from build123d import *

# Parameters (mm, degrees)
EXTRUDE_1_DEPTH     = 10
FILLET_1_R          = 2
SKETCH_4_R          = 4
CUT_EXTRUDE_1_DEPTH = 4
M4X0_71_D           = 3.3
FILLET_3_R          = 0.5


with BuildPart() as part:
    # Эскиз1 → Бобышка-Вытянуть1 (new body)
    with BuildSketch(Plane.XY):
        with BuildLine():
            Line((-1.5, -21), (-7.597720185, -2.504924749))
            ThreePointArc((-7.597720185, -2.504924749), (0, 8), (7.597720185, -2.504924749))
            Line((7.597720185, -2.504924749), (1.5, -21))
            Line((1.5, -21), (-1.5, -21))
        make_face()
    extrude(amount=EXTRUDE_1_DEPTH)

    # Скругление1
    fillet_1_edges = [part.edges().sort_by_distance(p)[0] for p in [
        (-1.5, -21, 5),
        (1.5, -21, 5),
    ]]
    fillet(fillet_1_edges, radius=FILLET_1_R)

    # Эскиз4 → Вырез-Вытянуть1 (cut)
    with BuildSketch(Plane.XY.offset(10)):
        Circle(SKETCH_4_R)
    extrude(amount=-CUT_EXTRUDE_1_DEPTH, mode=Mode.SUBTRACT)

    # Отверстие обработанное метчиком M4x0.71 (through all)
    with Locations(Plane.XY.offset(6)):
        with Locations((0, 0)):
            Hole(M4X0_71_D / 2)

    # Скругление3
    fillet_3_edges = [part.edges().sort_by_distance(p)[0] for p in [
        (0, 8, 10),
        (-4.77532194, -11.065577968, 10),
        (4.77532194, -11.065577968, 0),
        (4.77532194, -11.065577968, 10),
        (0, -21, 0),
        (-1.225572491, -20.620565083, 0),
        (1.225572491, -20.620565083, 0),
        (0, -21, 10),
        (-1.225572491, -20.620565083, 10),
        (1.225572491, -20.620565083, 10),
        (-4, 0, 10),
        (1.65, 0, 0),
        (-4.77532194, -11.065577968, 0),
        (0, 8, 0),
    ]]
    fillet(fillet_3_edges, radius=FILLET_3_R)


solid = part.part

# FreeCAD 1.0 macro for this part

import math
import FreeCAD as App
import Part
import Sketcher

V = App.Vector


def edges_at(feature, points):
    """Names of the edges that pass closest to the given points."""
    edges = feature.Shape.Edges
    near = lambda p: min(range(len(edges)), key=lambda i: edges[i].distToShape(Part.Vertex(*p))[0])
    return sorted({f"Edge{near(p) + 1}" for p in points})

doc = App.newDocument("Part")
params = doc.addObject("Spreadsheet::Sheet", "Params")
for row, (alias, value) in enumerate([
    ("sketch1_radius", "8 mm"),
    ("sketch1_width", "3 mm"),
    ("pad1_length", "10 mm"),
    ("fillet_radius", "2 mm"),
    ("sketch2_diameter", "8 mm"),
    ("pocket1_length", "4 mm"),
    ("sketch3_diameter", "3.3 mm"),
    ("hole_diameter", "3.3 mm"),
    ("fillet2_radius", "0.5 mm"),
], start=1):
    params.set(f"A{row}", alias)
    params.set(f"B{row}", "=" + value)
    params.setAlias(f"B{row}", alias)

body = doc.addObject("PartDesign::Body", "Body")

# Sketch on XY plane
sketch1 = body.newObject("Sketcher::SketchObject", "Sketch")
sketch1.AttachmentSupport = (doc.getObject("XY_Plane"), [""])
sketch1.MapMode = "FlatFace"
sketch1.addGeometry([
    Part.LineSegment(V(-7.6, -2.5, 0), V(-1.5, -21, 0)),
    Part.LineSegment(V(-1.5, -21, 0), V(1.5, -21, 0)),
    Part.LineSegment(V(1.5, -21, 0), V(7.6, -2.5, 0)),
    Part.ArcOfCircle(Part.Circle(V(0, 0, 0), V(0, 0, 1), 8), math.radians(-18), math.radians(198)),
], False)
sketch1.addConstraint([
    Sketcher.Constraint("Coincident", 0, 2, 1, 1),
    Sketcher.Constraint("Coincident", 1, 2, 2, 1),
    Sketcher.Constraint("Tangent", 2, 2, 3, 1),
    Sketcher.Constraint("Tangent", 3, 2, 0, 1),
    Sketcher.Constraint("Horizontal", 1),
    Sketcher.Constraint("Coincident", 3, 3, -1, 1),
    Sketcher.Constraint("Horizontal", 2, 2, 3, 2),
    Sketcher.Constraint("Radius", 3, 8.0),
    Sketcher.Constraint("DistanceX", 1, 1, 1, 2, 3.0),
    Sketcher.Constraint("DistanceY", 0, 2, -1, 1, 21.0),
])
sketch1.setExpression("Constraints[7]", "Params.sketch1_radius")
sketch1.setExpression("Constraints[8]", "Params.sketch1_width")
pad1 = body.newObject("PartDesign::Pad", "Pad")
pad1.Profile = sketch1
pad1.setExpression("Length", "Params.pad1_length")
doc.recompute()

fillet = body.newObject("PartDesign::Fillet", "Fillet")
fillet.Base = (pad1, edges_at(pad1, [(-1.5, -21, 5), (1.5, -21, 5)]))
fillet.setExpression("Radius", "Params.fillet_radius")

# Sketch on XY plane
sketch2 = body.newObject("Sketcher::SketchObject", "Sketch001")
sketch2.AttachmentSupport = (doc.getObject("XY_Plane"), [""])
sketch2.MapMode = "FlatFace"
sketch2.AttachmentOffset = App.Placement(V(0, 0, 10), App.Rotation())
sketch2.addGeometry(Part.Circle(V(0, 0, 0), V(0, 0, 1), 4), False)
sketch2.addConstraint([
    Sketcher.Constraint("Coincident", 0, 3, -1, 1),
    Sketcher.Constraint("Diameter", 0, 8.0),
])
sketch2.setExpression("Constraints[1]", "Params.sketch2_diameter")
pocket1 = body.newObject("PartDesign::Pocket", "Pocket")
pocket1.Profile = sketch2
pocket1.setExpression("Length", "Params.pocket1_length")

# Sketch on XY plane
sketch3 = body.newObject("Sketcher::SketchObject", "Sketch002")
sketch3.AttachmentSupport = (doc.getObject("XY_Plane"), [""])
sketch3.MapMode = "FlatFace"
sketch3.AttachmentOffset = App.Placement(V(0, 0, 6), App.Rotation())
sketch3.addGeometry(Part.Circle(V(0, 0, 0), V(0, 0, 1), 1.6), False)
sketch3.addConstraint([
    Sketcher.Constraint("Coincident", 0, 3, -1, 1),
    Sketcher.Constraint("Diameter", 0, 3.3),
])
sketch3.setExpression("Constraints[1]", "Params.sketch3_diameter")
doc.recompute()
hole = body.newObject("PartDesign::Hole", "Hole")
hole.Profile = sketch3
hole.ThreadType = "None"
hole.setExpression("Diameter", "Params.hole_diameter")
hole.DepthType = "ThroughAll"
doc.recompute()

fillet2 = body.newObject("PartDesign::Fillet", "Fillet001")
fillet2.Base = (hole, edges_at(hole, [
    (0, 8, 10),
    (-4.775, -11.066, 10),
    (4.775, -11.066, 0),
    (4.775, -11.066, 10),
    (0, -21, 0),
    (-1.226, -20.621, 0),
    (1.226, -20.621, 0),
    (0, -21, 10),
    (-1.226, -20.621, 10),
    (1.226, -20.621, 10),
    (-4, 0, 10),
    (1.65, 0, 0),
    (-4.775, -11.066, 0),
    (0, 8, 0),
]))
fillet2.setExpression("Radius", "Params.fillet2_radius")

doc.recompute()
